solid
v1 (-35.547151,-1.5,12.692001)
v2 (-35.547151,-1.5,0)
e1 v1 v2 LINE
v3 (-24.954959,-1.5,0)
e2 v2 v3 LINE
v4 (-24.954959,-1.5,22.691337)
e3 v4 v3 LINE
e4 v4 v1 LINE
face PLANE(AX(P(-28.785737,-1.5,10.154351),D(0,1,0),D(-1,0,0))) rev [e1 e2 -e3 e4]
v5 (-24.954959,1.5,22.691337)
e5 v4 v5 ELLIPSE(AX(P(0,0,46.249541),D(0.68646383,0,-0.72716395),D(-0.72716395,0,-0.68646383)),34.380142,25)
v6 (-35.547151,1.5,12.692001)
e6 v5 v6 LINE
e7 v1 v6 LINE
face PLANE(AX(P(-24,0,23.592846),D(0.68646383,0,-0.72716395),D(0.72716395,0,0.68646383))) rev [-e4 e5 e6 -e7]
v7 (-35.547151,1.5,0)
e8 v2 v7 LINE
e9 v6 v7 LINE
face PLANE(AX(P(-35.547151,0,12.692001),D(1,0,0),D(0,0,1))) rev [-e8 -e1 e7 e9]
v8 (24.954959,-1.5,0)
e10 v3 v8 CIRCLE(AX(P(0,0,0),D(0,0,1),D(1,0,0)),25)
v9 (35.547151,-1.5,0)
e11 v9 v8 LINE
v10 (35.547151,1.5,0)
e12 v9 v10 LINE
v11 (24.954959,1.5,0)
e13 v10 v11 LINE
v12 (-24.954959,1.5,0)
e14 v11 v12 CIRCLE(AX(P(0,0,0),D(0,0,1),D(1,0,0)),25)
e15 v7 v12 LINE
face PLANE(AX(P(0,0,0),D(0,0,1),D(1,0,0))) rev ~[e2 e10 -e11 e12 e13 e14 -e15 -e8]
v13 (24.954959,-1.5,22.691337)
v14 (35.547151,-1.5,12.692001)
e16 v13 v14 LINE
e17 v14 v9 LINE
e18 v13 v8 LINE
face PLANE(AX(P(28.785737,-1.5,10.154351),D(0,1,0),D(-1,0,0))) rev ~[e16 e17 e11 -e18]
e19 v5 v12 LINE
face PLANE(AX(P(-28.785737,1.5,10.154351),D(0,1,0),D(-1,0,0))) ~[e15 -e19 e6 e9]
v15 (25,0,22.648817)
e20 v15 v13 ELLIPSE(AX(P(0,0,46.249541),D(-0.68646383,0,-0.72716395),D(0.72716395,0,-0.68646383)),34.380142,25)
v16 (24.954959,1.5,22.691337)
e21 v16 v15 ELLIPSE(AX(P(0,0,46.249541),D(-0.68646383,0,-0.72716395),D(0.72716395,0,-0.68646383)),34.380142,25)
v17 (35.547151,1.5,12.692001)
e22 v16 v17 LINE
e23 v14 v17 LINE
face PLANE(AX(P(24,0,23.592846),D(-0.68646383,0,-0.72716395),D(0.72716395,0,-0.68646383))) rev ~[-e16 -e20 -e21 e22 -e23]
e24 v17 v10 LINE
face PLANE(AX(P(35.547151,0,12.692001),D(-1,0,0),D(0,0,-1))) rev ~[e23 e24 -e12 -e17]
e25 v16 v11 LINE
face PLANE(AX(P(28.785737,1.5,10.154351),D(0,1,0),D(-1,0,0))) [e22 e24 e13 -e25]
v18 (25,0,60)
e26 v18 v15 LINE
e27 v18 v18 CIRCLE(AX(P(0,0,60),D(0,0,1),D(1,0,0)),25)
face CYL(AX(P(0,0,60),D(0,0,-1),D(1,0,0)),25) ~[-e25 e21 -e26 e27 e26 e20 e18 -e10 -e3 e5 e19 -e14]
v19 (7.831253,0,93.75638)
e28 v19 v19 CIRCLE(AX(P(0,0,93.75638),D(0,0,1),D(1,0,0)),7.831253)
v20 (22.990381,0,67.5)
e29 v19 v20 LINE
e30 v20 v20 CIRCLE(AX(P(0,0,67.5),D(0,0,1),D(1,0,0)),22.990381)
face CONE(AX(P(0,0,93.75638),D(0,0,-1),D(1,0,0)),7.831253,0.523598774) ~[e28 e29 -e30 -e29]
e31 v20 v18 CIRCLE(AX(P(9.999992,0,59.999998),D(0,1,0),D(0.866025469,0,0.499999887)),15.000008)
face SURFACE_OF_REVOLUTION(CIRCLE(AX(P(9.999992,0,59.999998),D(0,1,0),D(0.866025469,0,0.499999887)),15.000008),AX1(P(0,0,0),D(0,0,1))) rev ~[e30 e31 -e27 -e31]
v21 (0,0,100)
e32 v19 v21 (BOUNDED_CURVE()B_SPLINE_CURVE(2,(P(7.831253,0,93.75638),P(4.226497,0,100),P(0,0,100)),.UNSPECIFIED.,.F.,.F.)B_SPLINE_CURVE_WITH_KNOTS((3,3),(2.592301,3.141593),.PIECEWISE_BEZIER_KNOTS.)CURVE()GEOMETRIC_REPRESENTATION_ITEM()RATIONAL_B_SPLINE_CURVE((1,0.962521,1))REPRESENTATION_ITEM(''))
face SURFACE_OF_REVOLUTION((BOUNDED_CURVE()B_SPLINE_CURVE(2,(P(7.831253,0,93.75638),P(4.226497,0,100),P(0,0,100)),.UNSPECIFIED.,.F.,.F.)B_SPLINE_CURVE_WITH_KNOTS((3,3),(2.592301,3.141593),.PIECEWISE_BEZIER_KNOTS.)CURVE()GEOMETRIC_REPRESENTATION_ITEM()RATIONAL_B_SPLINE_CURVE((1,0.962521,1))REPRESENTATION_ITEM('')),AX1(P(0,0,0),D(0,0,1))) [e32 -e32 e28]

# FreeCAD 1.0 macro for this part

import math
import FreeCAD as App
import Part
import Sketcher

V = App.Vector


def add_polygon(sketch, points):
    """Adds a closed chain of lines whose ends are joined by coincident constraints."""
    first, n = sketch.GeometryCount, len(points)
    for a, b in zip(points, points[1:] + points[:1]):
        sketch.addGeometry(Part.LineSegment(App.Vector(*a, 0), App.Vector(*b, 0)), False)
    for i in range(n):
        sketch.addConstraint(Sketcher.Constraint("Coincident", first + i, 2, first + (i + 1) % n, 1))

doc = App.newDocument("Part")
body = doc.addObject("PartDesign::Body", "Body")

# Sketch on XZ plane
sketch1 = body.newObject("Sketcher::SketchObject", "Sketch")
sketch1.AttachmentSupport = (doc.getObject("XZ_Plane"), [""])
sketch1.MapMode = "FlatFace"
sketch1.addGeometry(Part.LineSegment(V(0, 100, 0), V(0, 0, 0)), False)
sketch1.addGeometry(Part.LineSegment(V(0, 0, 0), V(25, 0, 0)), False)
sketch1.addGeometry(Part.LineSegment(V(25, 0, 0), V(25, 60, 0)), False)
sketch1.addGeometry(Part.ArcOfCircle(Part.Circle(V(9.999992, 59.999998, 0), V(0, 0, 1), 15.000008), math.radians(0.000008), math.radians(29.999993)), False)
sketch1.addGeometry(Part.LineSegment(V(22.990381, 67.5, 0), V(7.831253, 93.75638, 0)), False)
sketch1.addGeometry(Part.BSplineCurve([V(7.831253, 93.75638, 0), V(4.226497, 100, 0), V(0, 100, 0)], [3, 3], [2.592301, 3.141593], False, 2, [1, 0.962521, 1], False), False)
sketch1.addConstraint(Sketcher.Constraint("Block", 5))
sketch1.addConstraint(Sketcher.Constraint("Coincident", 0, 2, 1, 1))
sketch1.addConstraint(Sketcher.Constraint("Coincident", 1, 2, 2, 1))
sketch1.addConstraint(Sketcher.Constraint("Coincident", 2, 2, 3, 1))
sketch1.addConstraint(Sketcher.Constraint("Coincident", 3, 2, 4, 1))
sketch1.addConstraint(Sketcher.Constraint("Coincident", 4, 2, 5, 1))
sketch1.addConstraint(Sketcher.Constraint("Coincident", 5, 2, 0, 1))
sketch1.addConstraint(Sketcher.Constraint("Vertical", 0))
sketch1.addConstraint(Sketcher.Constraint("Horizontal", 1))
sketch1.addConstraint(Sketcher.Constraint("Vertical", 2))
sketch1.addConstraint(Sketcher.Constraint("PointOnObject", 1, 2, -1))
sketch1.addConstraint(Sketcher.Constraint("DistanceX", 1, 1, 1, 2, 25.0))
sketch1.addConstraint(Sketcher.Constraint("DistanceY", 2, 1, 2, 2, 60.0))
sketch1.addConstraint(Sketcher.Constraint("DistanceY", -1, 1, 3, 2, 67.5))
sketch1.addConstraint(Sketcher.Constraint("Radius", 3, 15.000008))
sketch1.addConstraint(Sketcher.Constraint("DistanceX", -1, 1, 3, 2, 22.990381))
revolution = body.newObject("PartDesign::Revolution", "Revolution")
revolution.Profile = sketch1
revolution.ReferenceAxis = (sketch1, ["V_Axis"])
revolution.Angle = 360

# Sketch on XZ plane
sketch2 = body.newObject("Sketcher::SketchObject", "Sketch001")
sketch2.AttachmentSupport = (doc.getObject("XZ_Plane"), [""])
sketch2.MapMode = "FlatFace"
add_polygon(sketch2, [(36, 13), (24, 24), (24, 0), (36, 0)])  # lines 0-3
sketch2.addConstraint(Sketcher.Constraint("Vertical", 1))
sketch2.addConstraint(Sketcher.Constraint("Horizontal", 2))
sketch2.addConstraint(Sketcher.Constraint("Vertical", 3))
sketch2.addConstraint(Sketcher.Constraint("PointOnObject", 1, 2, -1))
sketch2.addConstraint(Sketcher.Constraint("DistanceX", -1, 1, 0, 2, 24.0))
sketch2.addConstraint(Sketcher.Constraint("DistanceY", 3, 1, 3, 2, 12.692001))
sketch2.addConstraint(Sketcher.Constraint("DistanceX", 2, 1, 2, 2, 11.547151))
sketch2.addConstraint(Sketcher.Constraint("DistanceY", 1, 2, 1, 1, 23.592846))
pad1 = body.newObject("PartDesign::Pad", "Pad")
pad1.Profile = sketch2
pad1.Length = 3
pad1.Midplane = True
doc.recompute()

mirrored = body.newObject("PartDesign::Mirrored", "Mirrored")
mirrored.Originals = [pad1]
mirrored.MirrorPlane = (doc.getObject("YZ_Plane"), [""])
body.Tip = mirrored

doc.recompute()
